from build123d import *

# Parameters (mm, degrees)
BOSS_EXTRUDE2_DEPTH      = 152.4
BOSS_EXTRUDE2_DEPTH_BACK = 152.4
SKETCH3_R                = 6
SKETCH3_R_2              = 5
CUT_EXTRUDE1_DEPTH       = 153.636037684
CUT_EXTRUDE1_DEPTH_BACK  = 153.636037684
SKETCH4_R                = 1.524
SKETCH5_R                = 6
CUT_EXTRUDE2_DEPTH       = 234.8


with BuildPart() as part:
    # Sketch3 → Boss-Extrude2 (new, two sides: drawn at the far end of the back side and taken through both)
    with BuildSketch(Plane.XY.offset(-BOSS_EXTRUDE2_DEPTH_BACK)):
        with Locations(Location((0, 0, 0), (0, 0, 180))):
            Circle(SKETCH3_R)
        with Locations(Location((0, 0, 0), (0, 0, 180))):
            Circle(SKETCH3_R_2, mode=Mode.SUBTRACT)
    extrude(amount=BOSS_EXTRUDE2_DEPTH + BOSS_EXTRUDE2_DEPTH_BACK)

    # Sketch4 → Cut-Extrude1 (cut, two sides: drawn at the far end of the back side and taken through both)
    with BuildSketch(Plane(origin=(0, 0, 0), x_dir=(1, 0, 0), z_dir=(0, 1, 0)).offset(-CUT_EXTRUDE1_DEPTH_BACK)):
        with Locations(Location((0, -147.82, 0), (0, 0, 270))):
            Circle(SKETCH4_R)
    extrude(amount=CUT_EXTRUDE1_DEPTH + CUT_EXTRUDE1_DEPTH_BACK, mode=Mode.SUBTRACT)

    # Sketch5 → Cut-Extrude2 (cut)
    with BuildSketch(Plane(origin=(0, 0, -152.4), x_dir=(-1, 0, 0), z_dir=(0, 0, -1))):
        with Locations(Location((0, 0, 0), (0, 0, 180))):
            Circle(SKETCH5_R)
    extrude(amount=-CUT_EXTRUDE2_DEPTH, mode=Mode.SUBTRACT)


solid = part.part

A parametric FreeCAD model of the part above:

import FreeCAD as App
import Part
import Sketcher
Q = App.Units.Quantity

doc = App.newDocument("Part")
body = doc.addObject("PartDesign::Body", "Body")

sketch1 = body.newObject("Sketcher::SketchObject", "Sketch")
sketch1.AttachmentSupport = (doc.getObject("XY_Plane"), [""])
sketch1.MapMode = "FlatFace"
sketch1.addGeometry([
    Part.Circle(App.Vector(0, 0, 0), App.Vector(0, 0, 1), 6),
    Part.Circle(App.Vector(0, 0, 0), App.Vector(0, 0, 1), 5),
], False)
sketch1.addConstraint([
    Sketcher.Constraint("Coincident", 0, 3, -1, 1),
    Sketcher.Constraint("Coincident", 1, 3, -1, 1),
    Sketcher.Constraint("Diameter", 0, Q("12 mm")),
    Sketcher.Constraint("Diameter", 1, Q("10 mm")),
])
pad1 = body.newObject("PartDesign::Pad", "Pad")
pad1.Profile = sketch1
pad1.Type = "TwoLengths"
pad1.Length = 152.4
pad1.Length2 = 152.4

sketch2 = body.newObject("Sketcher::SketchObject", "Sketch001")
sketch2.AttachmentSupport = (doc.getObject("XZ_Plane"), [""])
sketch2.MapMode = "FlatFace"
sketch2.addGeometry(Part.Circle(App.Vector(0, 147.8, 0), App.Vector(0, 0, 1), 1.5), False)
sketch2.addConstraint([
    Sketcher.Constraint("PointOnObject", 0, 3, -2),
    Sketcher.Constraint("Diameter", 0, Q("3.048 mm")),
    Sketcher.Constraint("DistanceY", -1, 1, 0, 3, Q("147.82 mm")),
])
pocket1 = body.newObject("PartDesign::Pocket", "Pocket")
pocket1.Profile = sketch2
pocket1.Type = "ThroughAll"
pocket1.Midplane = True

sketch3 = body.newObject("Sketcher::SketchObject", "Sketch002")
sketch3.AttachmentSupport = (doc.getObject("XY_Plane"), [""])
sketch3.MapMode = "FlatFace"
sketch3.AttachmentOffset = App.Placement(App.Vector(0, 0, -152.4), App.Rotation())
sketch3.addGeometry(Part.Circle(App.Vector(0, 0, 0), App.Vector(0, 0, 1), 6), False)
sketch3.addConstraint([
    Sketcher.Constraint("Coincident", 0, 3, -1, 1),
    Sketcher.Constraint("Diameter", 0, Q("12 mm")),
])
pocket2 = body.newObject("PartDesign::Pocket", "Pocket001")
pocket2.Profile = sketch3
pocket2.Length = 234.8
pocket2.Reversed = True

doc.recompute()
